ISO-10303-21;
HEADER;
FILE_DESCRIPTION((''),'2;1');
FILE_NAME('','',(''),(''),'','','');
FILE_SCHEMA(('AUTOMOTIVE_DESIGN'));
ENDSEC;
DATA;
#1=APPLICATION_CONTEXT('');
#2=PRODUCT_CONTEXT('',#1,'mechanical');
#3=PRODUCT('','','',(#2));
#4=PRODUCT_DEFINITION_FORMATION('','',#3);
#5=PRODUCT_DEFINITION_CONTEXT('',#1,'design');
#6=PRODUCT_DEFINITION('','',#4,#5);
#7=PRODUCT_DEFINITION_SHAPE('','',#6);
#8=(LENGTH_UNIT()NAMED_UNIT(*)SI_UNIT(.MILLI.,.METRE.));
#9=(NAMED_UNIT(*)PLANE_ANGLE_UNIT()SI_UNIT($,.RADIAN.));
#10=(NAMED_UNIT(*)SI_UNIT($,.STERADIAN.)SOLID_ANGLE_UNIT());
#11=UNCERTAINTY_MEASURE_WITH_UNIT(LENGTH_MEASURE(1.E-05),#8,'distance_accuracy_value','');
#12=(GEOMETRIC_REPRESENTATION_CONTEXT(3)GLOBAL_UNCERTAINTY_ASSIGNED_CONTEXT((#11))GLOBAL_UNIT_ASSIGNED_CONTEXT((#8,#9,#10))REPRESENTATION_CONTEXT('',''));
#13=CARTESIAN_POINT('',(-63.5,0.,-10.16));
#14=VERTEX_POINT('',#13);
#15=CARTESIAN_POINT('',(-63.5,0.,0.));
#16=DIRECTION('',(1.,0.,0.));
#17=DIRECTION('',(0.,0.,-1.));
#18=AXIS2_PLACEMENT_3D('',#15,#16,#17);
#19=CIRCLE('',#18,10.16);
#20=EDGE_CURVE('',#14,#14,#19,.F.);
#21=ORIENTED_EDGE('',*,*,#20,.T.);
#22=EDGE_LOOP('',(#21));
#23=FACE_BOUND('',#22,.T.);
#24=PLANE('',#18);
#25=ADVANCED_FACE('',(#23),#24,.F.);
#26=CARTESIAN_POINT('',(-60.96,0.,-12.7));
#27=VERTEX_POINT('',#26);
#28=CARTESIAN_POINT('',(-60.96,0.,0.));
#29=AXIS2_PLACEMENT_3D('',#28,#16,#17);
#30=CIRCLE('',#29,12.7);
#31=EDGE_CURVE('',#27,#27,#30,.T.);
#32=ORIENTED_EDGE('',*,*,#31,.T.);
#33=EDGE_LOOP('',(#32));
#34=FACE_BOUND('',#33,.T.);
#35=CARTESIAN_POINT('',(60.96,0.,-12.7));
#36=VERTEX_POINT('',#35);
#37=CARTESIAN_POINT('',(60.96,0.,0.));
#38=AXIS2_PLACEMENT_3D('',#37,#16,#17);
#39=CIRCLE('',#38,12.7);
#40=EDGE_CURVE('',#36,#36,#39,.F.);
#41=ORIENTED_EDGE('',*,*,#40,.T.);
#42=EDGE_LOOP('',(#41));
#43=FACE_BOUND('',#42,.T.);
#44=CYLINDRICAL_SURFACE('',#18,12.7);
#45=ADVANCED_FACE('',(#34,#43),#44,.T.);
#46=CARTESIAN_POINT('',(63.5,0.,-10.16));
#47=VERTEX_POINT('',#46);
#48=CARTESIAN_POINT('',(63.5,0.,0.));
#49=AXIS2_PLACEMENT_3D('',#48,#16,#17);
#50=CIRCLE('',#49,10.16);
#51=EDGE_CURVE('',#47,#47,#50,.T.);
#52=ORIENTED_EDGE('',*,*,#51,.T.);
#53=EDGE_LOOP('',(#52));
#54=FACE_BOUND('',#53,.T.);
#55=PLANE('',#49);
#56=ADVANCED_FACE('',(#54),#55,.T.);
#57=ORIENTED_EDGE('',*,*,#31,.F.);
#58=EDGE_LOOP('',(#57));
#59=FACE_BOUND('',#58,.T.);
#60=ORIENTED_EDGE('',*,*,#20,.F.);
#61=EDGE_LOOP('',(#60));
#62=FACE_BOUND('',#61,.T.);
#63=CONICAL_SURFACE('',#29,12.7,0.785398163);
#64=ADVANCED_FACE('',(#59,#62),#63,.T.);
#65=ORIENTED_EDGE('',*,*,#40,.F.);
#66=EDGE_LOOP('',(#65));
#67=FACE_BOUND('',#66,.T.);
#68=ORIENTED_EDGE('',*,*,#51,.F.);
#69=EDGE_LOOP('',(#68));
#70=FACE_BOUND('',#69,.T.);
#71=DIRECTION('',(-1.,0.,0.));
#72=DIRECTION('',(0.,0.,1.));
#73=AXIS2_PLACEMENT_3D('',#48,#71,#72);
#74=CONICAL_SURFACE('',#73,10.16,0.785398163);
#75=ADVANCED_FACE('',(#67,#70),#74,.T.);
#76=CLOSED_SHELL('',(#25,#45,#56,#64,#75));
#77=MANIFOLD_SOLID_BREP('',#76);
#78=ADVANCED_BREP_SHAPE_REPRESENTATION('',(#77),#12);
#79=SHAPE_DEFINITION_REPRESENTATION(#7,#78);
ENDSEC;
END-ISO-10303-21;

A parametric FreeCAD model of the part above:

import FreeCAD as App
import Part
import Sketcher
Q = App.Units.Quantity


def edges_at(feature, points):
    """Names of the edges that pass closest to the given points."""
    edges = feature.Shape.Edges
    near = lambda p: min(range(len(edges)), key=lambda i: edges[i].distToShape(Part.Vertex(*p))[0])
    return sorted({f"Edge{near(p) + 1}" for p in points})

doc = App.newDocument("Part")
body = doc.addObject("PartDesign::Body", "Body")

# Sketch on YZ plane
sketch1 = doc.addObject("Sketcher::SketchObject", "Sketch")
body.addObject(sketch1)
sketch1.AttachmentSupport = (doc.YZ_Plane, [""])
sketch1.MapMode = "FlatFace"
sketch1.addGeometry(Part.Circle(App.Vector(0, 0, 0), App.Vector(0, 0, 1), 12.7), False)
sketch1.addConstraint([
    Sketcher.Constraint("Coincident", 0, 3, -1, 1),
    Sketcher.Constraint("Diameter", 0, Q("1 in")),
])
pad1 = doc.addObject("PartDesign::Pad", "Pad")
body.addObject(pad1)
pad1.Profile = sketch1
pad1.Type = "TwoLengths"
pad1.Length = Q("2.5 in")
pad1.Length2 = Q("2.5 in")
doc.recompute()

chamfer = doc.addObject("PartDesign::Chamfer", "Chamfer")
body.addObject(chamfer)
chamfer.Base = (pad1, edges_at(pad1, [(-63.5, 0, 12.7), (63.5, 0, 12.7)]))
chamfer.Size = Q("0.1 in")

doc.recompute()
